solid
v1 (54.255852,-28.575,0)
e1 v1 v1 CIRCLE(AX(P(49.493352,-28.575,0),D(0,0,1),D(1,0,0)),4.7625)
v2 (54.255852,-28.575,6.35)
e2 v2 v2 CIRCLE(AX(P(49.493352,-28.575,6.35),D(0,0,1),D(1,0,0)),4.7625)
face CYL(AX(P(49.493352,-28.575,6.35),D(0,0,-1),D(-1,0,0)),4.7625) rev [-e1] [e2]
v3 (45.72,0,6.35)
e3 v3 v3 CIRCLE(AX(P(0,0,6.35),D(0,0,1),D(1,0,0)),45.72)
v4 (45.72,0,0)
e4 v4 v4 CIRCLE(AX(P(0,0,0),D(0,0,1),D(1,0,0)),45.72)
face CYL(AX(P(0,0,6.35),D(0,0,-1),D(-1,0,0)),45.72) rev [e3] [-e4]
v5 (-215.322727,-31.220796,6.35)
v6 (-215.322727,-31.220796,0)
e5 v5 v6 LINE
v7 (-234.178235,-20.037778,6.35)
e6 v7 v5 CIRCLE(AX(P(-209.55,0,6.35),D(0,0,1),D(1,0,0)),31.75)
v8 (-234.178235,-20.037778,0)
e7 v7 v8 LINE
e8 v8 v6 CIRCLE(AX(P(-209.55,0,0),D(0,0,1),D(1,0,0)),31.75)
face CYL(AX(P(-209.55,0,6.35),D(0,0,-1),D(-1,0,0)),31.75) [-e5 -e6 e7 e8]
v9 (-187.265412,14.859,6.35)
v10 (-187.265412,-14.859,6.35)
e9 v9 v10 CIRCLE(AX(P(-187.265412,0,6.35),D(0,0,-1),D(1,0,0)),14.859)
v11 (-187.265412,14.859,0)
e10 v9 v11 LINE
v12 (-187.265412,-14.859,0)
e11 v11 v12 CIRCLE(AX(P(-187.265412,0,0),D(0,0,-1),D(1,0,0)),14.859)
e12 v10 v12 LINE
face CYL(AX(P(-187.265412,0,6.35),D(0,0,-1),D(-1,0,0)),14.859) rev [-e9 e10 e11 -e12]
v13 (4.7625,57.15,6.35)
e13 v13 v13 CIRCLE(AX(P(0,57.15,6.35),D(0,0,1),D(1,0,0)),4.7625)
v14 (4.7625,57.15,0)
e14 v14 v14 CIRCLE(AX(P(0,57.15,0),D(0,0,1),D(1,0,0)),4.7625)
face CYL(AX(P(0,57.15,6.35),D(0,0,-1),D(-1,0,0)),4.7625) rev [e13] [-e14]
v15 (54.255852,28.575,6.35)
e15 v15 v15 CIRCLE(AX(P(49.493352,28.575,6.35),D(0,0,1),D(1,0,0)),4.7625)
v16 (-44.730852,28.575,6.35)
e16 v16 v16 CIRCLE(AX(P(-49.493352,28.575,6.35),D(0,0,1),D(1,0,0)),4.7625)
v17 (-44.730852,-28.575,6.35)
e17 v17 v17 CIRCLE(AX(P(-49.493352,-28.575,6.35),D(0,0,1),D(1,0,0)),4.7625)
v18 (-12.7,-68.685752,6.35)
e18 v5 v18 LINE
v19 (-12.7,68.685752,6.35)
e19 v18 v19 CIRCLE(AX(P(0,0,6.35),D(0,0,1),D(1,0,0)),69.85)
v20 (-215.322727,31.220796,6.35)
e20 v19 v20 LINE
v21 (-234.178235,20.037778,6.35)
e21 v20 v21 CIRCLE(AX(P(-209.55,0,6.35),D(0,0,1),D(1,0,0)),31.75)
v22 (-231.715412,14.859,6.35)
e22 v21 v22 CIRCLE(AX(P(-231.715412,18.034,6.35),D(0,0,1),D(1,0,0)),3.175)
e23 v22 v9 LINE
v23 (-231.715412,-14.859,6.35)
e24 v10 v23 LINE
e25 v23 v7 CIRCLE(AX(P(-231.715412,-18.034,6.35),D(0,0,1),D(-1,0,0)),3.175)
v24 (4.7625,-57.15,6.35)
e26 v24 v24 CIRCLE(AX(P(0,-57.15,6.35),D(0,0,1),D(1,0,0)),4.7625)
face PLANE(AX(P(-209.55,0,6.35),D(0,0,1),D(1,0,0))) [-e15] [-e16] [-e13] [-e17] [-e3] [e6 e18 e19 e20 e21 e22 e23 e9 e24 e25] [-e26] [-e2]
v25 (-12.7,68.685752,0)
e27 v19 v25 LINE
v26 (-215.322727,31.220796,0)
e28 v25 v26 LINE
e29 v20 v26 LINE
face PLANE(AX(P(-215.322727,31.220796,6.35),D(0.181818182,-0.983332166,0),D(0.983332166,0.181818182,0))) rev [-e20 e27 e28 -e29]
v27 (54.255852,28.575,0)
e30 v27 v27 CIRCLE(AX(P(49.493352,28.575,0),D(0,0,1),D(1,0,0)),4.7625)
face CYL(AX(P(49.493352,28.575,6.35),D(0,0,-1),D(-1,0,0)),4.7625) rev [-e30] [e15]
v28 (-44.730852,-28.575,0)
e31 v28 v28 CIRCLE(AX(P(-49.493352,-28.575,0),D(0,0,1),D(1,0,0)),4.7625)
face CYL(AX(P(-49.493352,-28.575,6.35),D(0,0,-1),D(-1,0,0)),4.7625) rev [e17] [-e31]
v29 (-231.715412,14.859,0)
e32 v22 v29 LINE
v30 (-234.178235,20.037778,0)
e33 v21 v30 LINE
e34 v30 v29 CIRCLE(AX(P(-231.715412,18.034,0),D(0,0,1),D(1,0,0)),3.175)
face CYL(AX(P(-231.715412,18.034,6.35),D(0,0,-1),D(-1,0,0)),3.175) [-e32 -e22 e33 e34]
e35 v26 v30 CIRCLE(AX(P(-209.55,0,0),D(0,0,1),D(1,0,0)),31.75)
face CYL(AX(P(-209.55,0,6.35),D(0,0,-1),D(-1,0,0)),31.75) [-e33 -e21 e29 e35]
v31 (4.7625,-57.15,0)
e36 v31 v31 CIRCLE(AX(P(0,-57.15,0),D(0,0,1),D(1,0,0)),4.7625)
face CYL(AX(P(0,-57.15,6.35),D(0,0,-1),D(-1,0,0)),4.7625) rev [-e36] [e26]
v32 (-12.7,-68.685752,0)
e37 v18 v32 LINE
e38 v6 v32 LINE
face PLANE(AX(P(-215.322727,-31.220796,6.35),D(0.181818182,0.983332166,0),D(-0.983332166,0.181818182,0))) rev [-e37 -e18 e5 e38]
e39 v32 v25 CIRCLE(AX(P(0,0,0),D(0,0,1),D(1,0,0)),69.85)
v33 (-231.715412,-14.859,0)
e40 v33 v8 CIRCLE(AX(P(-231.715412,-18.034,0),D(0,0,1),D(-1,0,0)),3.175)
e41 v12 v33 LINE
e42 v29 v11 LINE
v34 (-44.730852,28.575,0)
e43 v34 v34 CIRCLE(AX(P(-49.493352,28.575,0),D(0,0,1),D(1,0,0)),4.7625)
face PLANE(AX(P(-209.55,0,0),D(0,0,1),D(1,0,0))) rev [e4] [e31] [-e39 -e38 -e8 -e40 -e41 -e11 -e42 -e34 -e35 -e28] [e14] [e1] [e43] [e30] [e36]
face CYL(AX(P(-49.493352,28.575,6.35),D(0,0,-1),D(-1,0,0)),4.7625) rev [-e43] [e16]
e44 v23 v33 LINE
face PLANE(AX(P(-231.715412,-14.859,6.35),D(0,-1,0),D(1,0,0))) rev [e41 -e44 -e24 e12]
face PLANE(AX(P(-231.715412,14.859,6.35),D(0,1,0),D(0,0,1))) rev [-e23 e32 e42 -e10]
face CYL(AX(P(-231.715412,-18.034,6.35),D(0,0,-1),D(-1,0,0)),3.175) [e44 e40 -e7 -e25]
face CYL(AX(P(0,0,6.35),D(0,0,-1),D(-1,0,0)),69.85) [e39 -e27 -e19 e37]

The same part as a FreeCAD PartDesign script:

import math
import FreeCAD as App
import Part
import Sketcher
Q = App.Units.Quantity

doc = App.newDocument("Part")
body = doc.addObject("PartDesign::Body", "Body")

# Sketch on XY plane
sketch1 = body.newObject("Sketcher::SketchObject", "Sketch")
sketch1.AttachmentSupport = (doc.getObject("XY_Plane"), [""])
sketch1.MapMode = "FlatFace"
sketch1.addGeometry([
    Part.LineSegment(App.Vector(-12.7, 68.685752, 0), App.Vector(-215.322727, 31.220796, 0)),  # 0
    Part.ArcOfCircle(Part.Circle(App.Vector(-209.55, 0, 0), App.Vector(0, 0, 1), 31.75), math.radians(100.475682), math.radians(140.867854)),  # 1
    Part.ArcOfCircle(Part.Circle(App.Vector(-231.715412, 18.034, 0), App.Vector(0, 0, 1), 3.175), math.radians(140.867854), math.radians(270)),  # 2
    Part.LineSegment(App.Vector(-231.715412, 14.859, 0), App.Vector(-187.265412, 14.859, 0)),  # 3
    Part.ArcOfCircle(Part.Circle(App.Vector(-187.265412, 0, 0), App.Vector(0, 0, 1), 14.859), math.radians(-90), math.radians(90)),  # 4
    Part.LineSegment(App.Vector(-187.265412, -14.859, 0), App.Vector(-231.715412, -14.859, 0)),  # 5
    Part.ArcOfCircle(Part.Circle(App.Vector(-231.715412, -18.034, 0), App.Vector(0, 0, 1), 3.175), math.radians(90), math.radians(219.132146)),  # 6
    Part.ArcOfCircle(Part.Circle(App.Vector(-209.55, 0, 0), App.Vector(0, 0, 1), 31.75), math.radians(-140.867854), math.radians(-100.475682)),  # 7
    Part.LineSegment(App.Vector(-215.322727, -31.220796, 0), App.Vector(-12.7, -68.685752, 0)),  # 8
    Part.ArcOfCircle(Part.Circle(App.Vector(0, 0, 0), App.Vector(0, 0, 1), 69.85), math.radians(-100.475682), math.radians(100.475682)),  # 9
    Part.Circle(App.Vector(0, -57.15, 0), App.Vector(0, 0, 1), 4.7625),  # 10
    Part.Circle(App.Vector(49.493352, -28.575, 0), App.Vector(0, 0, 1), 4.7625),  # 11
    Part.Circle(App.Vector(-49.493352, -28.575, 0), App.Vector(0, 0, 1), 4.7625),  # 12
    Part.Circle(App.Vector(49.493352, 28.575, 0), App.Vector(0, 0, 1), 4.7625),  # 13
    Part.Circle(App.Vector(0, 0, 0), App.Vector(0, 0, 1), 45.72),  # 14
    Part.Circle(App.Vector(0, 57.15, 0), App.Vector(0, 0, 1), 4.7625),  # 15
    Part.Circle(App.Vector(-49.493352, 28.575, 0), App.Vector(0, 0, 1), 4.7625),  # 16
], False)
sketch1.addConstraint([
    Sketcher.Constraint("Tangent", 0, 2, 1, 1),
    Sketcher.Constraint("Tangent", 1, 2, 2, 1),
    Sketcher.Constraint("Tangent", 2, 2, 3, 1),
    Sketcher.Constraint("Tangent", 3, 2, 4, 2),
    Sketcher.Constraint("Tangent", 4, 1, 5, 1),
    Sketcher.Constraint("Tangent", 5, 2, 6, 1),
    Sketcher.Constraint("Tangent", 6, 2, 7, 1),
    Sketcher.Constraint("Tangent", 7, 2, 8, 1),
    Sketcher.Constraint("Tangent", 8, 2, 9, 1),
    Sketcher.Constraint("Tangent", 9, 2, 0, 1),
    Sketcher.Constraint("Horizontal", 3),
    Sketcher.Constraint("Horizontal", 5),
    Sketcher.Constraint("Coincident", 9, 3, -1, 1),
    Sketcher.Constraint("Coincident", 14, 3, -1, 1),
    Sketcher.Constraint("Coincident", 7, 3, 1, 3),
    Sketcher.Constraint("Equal", 2, 6),
    Sketcher.Constraint("Equal", 1, 7),
    Sketcher.Constraint("Equal", 10, 11),
    Sketcher.Constraint("Equal", 11, 12),
    Sketcher.Constraint("Equal", 12, 13),
    Sketcher.Constraint("Equal", 13, 15),
    Sketcher.Constraint("Equal", 15, 16),
    Sketcher.Constraint("Symmetric", 12, 3, 13, 3, -1, 1),
    Sketcher.Constraint("Symmetric", 10, 3, 15, 3, -1, 1),
    Sketcher.Constraint("Symmetric", 11, 3, 16, 3, -1, 1),
    Sketcher.Constraint("Symmetric", 11, 3, 12, 3, -2),
    Sketcher.Constraint("Symmetric", 2, 3, 6, 3, -1),
    Sketcher.Constraint("PointOnObject", 10, 3, -2),
    Sketcher.Constraint("Diameter", 14, Q("3.6 in")),
    Sketcher.Constraint("Radius", 1, Q("1.25 in")),
    Sketcher.Constraint("Radius", 9, Q("2.75 in")),
    Sketcher.Constraint("Diameter", 10, Q("0.375 in")),
    Sketcher.Constraint("Radius", 2, Q("0.125 in")),
    Sketcher.Constraint("Radius", 4, Q("0.585 in")),
    Sketcher.Constraint("DistanceX", 3, 1, 3, 2, Q("1.75 in")),
    Sketcher.Constraint("DistanceX", 8, 2, -1, 1, Q("0.5 in")),
    Sketcher.Constraint("DistanceY", 10, 3, -1, 1, Q("2.25 in")),
    Sketcher.Constraint("DistanceY", 11, 3, 13, 3, Q("2.25 in")),
    Sketcher.Constraint("DistanceX", -1, 1, 11, 3, 49.493352),
])
pad1 = body.newObject("PartDesign::Pad", "Pad")
pad1.Profile = sketch1
pad1.Length = Q("0.25 in")

doc.recompute()
